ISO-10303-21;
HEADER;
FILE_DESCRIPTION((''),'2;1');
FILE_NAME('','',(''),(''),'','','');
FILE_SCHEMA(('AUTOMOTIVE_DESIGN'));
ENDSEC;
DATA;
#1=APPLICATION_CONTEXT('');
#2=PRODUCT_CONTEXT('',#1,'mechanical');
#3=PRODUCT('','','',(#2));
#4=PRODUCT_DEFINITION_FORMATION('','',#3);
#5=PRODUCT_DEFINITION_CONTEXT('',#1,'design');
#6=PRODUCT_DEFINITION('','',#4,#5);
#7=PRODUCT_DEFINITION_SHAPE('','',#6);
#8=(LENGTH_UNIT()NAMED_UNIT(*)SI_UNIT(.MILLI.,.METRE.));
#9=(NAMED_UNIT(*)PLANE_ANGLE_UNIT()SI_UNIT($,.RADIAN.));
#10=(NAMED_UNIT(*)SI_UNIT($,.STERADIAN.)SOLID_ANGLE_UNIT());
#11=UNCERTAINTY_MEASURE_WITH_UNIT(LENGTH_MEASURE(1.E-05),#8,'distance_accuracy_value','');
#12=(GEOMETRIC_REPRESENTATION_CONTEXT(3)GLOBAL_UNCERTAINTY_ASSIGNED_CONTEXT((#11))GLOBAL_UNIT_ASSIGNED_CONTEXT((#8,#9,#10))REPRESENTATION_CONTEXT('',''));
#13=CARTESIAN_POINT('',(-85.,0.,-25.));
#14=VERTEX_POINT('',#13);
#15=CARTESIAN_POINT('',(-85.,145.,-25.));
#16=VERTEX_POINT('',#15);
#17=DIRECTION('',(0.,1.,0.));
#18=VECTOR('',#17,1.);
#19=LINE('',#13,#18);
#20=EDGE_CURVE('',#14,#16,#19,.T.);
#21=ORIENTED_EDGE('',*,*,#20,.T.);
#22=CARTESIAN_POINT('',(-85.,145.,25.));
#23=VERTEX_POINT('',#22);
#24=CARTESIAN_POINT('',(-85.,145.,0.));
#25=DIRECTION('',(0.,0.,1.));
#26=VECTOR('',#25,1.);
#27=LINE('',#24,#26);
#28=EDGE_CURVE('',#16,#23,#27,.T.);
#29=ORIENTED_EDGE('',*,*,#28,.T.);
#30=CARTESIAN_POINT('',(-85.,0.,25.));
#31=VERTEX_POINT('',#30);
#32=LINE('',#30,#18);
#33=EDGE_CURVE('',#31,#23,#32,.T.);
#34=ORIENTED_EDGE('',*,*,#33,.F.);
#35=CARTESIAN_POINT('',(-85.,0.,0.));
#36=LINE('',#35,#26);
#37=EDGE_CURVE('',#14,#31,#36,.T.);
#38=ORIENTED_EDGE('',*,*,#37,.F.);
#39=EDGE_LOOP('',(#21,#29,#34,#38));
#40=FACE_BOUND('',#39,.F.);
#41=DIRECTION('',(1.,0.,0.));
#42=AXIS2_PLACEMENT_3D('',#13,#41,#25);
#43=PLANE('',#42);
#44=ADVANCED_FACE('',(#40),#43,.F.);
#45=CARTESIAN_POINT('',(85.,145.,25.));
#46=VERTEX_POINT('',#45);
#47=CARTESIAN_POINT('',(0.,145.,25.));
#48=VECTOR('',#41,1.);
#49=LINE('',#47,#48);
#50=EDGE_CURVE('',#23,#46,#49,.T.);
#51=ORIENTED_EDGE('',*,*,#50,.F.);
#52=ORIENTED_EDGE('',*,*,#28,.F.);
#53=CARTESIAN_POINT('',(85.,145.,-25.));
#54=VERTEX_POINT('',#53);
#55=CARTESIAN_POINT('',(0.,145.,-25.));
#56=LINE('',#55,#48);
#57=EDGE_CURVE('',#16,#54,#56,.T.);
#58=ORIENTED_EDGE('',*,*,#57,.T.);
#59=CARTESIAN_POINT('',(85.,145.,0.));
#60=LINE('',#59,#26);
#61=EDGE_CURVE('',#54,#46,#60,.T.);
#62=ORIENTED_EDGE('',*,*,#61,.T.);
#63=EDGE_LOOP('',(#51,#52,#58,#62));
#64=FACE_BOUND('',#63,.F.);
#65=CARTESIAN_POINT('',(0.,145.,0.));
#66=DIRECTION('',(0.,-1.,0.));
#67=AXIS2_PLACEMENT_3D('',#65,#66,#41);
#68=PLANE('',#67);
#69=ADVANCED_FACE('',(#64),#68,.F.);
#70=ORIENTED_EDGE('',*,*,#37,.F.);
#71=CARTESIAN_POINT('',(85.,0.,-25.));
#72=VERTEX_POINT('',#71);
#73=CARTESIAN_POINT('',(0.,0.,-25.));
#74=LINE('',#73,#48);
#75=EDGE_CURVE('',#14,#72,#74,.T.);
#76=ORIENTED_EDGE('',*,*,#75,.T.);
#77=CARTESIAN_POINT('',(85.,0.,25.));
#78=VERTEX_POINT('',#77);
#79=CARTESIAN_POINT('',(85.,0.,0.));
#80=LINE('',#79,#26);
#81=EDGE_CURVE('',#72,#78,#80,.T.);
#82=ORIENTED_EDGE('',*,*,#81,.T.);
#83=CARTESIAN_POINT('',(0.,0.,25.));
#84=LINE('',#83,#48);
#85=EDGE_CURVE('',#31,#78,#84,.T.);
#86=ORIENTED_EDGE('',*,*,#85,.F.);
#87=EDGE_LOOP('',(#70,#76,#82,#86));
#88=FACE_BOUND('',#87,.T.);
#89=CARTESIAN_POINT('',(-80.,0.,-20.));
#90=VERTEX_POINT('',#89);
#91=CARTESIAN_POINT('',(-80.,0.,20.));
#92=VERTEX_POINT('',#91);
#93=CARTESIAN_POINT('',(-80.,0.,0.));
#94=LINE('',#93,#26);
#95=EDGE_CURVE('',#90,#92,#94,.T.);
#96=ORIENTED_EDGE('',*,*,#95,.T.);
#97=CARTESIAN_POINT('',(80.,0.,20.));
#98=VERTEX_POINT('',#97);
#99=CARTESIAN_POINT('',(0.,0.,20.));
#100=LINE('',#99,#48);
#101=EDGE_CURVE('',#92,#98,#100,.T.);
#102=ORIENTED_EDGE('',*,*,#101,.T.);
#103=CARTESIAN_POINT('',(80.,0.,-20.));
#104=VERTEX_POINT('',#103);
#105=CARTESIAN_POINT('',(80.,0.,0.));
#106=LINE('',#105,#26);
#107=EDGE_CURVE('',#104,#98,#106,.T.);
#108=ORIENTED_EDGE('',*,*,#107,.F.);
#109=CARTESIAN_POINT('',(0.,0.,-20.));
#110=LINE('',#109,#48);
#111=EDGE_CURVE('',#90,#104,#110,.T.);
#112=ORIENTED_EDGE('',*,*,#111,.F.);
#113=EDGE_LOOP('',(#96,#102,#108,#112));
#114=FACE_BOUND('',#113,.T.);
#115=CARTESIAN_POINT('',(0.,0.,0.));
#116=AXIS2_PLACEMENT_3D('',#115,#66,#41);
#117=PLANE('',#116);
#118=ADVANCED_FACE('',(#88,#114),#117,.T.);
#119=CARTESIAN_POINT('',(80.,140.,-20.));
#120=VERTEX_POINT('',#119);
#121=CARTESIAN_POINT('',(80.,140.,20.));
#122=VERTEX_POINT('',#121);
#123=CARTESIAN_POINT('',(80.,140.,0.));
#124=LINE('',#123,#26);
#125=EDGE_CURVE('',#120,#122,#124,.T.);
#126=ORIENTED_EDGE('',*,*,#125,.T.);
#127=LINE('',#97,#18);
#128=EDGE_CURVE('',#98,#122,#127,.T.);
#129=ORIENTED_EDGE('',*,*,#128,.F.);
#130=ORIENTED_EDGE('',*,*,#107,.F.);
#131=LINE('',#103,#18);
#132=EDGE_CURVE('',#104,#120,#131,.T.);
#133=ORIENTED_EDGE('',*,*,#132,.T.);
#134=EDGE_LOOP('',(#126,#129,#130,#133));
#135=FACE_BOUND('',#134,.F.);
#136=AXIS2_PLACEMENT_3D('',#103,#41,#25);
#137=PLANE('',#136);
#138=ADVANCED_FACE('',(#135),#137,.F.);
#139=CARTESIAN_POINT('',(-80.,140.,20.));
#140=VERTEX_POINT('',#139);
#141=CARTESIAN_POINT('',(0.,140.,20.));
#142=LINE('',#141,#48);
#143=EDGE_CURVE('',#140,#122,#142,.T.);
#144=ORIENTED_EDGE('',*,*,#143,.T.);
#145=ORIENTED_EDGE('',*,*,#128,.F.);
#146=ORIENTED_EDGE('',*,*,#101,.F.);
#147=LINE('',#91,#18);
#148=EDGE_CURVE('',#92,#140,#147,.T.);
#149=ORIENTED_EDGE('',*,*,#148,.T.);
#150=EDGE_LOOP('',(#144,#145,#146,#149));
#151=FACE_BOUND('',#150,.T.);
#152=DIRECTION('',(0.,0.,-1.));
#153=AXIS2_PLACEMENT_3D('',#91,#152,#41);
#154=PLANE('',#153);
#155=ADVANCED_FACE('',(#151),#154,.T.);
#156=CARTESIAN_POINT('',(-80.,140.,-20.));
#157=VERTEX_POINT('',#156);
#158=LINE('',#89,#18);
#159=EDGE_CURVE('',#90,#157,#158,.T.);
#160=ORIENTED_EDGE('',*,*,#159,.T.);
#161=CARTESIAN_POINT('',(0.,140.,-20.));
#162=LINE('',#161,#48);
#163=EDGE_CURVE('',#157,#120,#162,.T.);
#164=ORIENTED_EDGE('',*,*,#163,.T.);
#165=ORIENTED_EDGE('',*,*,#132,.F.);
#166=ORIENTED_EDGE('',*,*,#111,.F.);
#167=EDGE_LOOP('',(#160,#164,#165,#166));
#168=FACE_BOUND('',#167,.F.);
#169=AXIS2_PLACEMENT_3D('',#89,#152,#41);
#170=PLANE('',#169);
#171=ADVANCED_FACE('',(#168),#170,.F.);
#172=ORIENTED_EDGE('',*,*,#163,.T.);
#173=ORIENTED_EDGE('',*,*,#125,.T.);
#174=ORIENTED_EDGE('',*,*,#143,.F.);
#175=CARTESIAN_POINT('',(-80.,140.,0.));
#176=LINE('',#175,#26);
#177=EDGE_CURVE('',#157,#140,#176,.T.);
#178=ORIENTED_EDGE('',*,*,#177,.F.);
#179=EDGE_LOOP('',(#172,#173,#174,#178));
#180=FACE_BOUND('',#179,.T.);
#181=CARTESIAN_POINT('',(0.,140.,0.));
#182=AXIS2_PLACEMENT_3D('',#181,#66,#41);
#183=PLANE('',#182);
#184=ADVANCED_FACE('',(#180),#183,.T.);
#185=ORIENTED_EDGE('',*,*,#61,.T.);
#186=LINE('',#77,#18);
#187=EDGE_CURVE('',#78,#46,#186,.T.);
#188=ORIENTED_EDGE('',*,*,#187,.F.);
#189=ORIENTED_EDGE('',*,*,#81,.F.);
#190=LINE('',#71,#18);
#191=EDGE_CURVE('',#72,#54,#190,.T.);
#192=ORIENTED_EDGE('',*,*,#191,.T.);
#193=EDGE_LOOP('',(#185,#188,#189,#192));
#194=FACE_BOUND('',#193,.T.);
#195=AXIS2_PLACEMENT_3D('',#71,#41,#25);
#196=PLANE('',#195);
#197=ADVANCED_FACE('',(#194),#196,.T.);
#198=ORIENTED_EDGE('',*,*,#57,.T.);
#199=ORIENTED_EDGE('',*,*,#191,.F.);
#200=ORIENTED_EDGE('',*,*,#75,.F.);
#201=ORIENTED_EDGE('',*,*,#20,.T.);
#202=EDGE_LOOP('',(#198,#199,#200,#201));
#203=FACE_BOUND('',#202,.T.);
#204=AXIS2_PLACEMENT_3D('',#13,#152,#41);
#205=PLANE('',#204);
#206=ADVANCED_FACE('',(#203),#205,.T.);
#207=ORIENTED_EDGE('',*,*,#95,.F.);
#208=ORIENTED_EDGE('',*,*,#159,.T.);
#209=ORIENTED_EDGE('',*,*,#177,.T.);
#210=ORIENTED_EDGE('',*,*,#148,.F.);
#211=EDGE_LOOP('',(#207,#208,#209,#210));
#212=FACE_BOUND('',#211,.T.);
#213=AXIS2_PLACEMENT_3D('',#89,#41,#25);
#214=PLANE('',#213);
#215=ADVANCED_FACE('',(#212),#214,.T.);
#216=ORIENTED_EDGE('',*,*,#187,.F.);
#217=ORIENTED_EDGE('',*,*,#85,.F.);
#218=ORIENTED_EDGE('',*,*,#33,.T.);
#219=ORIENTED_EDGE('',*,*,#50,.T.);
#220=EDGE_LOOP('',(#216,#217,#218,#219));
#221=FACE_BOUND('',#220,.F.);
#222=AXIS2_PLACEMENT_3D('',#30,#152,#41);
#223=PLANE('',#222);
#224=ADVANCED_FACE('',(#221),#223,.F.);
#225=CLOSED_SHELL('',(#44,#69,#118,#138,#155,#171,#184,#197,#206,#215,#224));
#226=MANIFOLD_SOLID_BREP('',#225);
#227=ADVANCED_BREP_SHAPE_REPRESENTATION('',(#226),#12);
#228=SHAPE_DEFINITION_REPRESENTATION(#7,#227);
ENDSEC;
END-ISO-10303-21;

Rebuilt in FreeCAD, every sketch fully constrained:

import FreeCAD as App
import Part
import Sketcher
from FreeCAD import Vector


def add_polygon(sketch, points):
    """Adds a closed chain of lines whose ends are joined by coincident constraints."""
    first, n = sketch.GeometryCount, len(points)
    for a, b in zip(points, points[1:] + points[:1]):
        sketch.addGeometry(Part.LineSegment(App.Vector(*a, 0), App.Vector(*b, 0)), False)
    for i in range(n):
        sketch.addConstraint(Sketcher.Constraint("Coincident", first + i, 2, first + (i + 1) % n, 1))

doc = App.newDocument("Part")
body = doc.addObject("PartDesign::Body", "Body")

sketch1 = body.newObject("Sketcher::SketchObject", "Sketch")
sketch1.AttachmentSupport = (doc.getObject("XZ_Plane"), [""])
sketch1.MapMode = "FlatFace"
add_polygon(sketch1, [(-85, 25), (-85, -25), (85, -25), (85, 25)])
sketch1.addConstraint([
    Sketcher.Constraint("Vertical", 0),
    Sketcher.Constraint("Horizontal", 1),
    Sketcher.Constraint("Vertical", 2),
    Sketcher.Constraint("Horizontal", 3),
    Sketcher.Constraint("Symmetric", 0, 2, 2, 2, -1, 1),
    Sketcher.Constraint("DistanceX", 1, 1, 1, 2, 170.0),
    Sketcher.Constraint("DistanceY", 0, 2, 0, 1, 50.0),
])
pad1 = body.newObject("PartDesign::Pad", "Pad")
pad1.Profile = sketch1
pad1.Length = 145
pad1.Reversed = True

sketch2 = body.newObject("Sketcher::SketchObject", "Sketch001")
sketch2.AttachmentSupport = (doc.getObject("XZ_Plane"), [""])
sketch2.MapMode = "FlatFace"
add_polygon(sketch2, [(-80, 20), (-80, -20), (80, -20), (80, 20)])
sketch2.addConstraint([
    Sketcher.Constraint("Vertical", 0),
    Sketcher.Constraint("Horizontal", 1),
    Sketcher.Constraint("Vertical", 2),
    Sketcher.Constraint("Horizontal", 3),
    Sketcher.Constraint("Symmetric", 0, 2, 2, 2, -1, 1),
    Sketcher.Constraint("DistanceX", 1, 1, 1, 2, 160.0),
    Sketcher.Constraint("DistanceY", 0, 2, 0, 1, 40.0),
])
pocket1 = body.newObject("PartDesign::Pocket", "Pocket")
pocket1.Profile = sketch2
pocket1.Length = 140

doc.recompute()
